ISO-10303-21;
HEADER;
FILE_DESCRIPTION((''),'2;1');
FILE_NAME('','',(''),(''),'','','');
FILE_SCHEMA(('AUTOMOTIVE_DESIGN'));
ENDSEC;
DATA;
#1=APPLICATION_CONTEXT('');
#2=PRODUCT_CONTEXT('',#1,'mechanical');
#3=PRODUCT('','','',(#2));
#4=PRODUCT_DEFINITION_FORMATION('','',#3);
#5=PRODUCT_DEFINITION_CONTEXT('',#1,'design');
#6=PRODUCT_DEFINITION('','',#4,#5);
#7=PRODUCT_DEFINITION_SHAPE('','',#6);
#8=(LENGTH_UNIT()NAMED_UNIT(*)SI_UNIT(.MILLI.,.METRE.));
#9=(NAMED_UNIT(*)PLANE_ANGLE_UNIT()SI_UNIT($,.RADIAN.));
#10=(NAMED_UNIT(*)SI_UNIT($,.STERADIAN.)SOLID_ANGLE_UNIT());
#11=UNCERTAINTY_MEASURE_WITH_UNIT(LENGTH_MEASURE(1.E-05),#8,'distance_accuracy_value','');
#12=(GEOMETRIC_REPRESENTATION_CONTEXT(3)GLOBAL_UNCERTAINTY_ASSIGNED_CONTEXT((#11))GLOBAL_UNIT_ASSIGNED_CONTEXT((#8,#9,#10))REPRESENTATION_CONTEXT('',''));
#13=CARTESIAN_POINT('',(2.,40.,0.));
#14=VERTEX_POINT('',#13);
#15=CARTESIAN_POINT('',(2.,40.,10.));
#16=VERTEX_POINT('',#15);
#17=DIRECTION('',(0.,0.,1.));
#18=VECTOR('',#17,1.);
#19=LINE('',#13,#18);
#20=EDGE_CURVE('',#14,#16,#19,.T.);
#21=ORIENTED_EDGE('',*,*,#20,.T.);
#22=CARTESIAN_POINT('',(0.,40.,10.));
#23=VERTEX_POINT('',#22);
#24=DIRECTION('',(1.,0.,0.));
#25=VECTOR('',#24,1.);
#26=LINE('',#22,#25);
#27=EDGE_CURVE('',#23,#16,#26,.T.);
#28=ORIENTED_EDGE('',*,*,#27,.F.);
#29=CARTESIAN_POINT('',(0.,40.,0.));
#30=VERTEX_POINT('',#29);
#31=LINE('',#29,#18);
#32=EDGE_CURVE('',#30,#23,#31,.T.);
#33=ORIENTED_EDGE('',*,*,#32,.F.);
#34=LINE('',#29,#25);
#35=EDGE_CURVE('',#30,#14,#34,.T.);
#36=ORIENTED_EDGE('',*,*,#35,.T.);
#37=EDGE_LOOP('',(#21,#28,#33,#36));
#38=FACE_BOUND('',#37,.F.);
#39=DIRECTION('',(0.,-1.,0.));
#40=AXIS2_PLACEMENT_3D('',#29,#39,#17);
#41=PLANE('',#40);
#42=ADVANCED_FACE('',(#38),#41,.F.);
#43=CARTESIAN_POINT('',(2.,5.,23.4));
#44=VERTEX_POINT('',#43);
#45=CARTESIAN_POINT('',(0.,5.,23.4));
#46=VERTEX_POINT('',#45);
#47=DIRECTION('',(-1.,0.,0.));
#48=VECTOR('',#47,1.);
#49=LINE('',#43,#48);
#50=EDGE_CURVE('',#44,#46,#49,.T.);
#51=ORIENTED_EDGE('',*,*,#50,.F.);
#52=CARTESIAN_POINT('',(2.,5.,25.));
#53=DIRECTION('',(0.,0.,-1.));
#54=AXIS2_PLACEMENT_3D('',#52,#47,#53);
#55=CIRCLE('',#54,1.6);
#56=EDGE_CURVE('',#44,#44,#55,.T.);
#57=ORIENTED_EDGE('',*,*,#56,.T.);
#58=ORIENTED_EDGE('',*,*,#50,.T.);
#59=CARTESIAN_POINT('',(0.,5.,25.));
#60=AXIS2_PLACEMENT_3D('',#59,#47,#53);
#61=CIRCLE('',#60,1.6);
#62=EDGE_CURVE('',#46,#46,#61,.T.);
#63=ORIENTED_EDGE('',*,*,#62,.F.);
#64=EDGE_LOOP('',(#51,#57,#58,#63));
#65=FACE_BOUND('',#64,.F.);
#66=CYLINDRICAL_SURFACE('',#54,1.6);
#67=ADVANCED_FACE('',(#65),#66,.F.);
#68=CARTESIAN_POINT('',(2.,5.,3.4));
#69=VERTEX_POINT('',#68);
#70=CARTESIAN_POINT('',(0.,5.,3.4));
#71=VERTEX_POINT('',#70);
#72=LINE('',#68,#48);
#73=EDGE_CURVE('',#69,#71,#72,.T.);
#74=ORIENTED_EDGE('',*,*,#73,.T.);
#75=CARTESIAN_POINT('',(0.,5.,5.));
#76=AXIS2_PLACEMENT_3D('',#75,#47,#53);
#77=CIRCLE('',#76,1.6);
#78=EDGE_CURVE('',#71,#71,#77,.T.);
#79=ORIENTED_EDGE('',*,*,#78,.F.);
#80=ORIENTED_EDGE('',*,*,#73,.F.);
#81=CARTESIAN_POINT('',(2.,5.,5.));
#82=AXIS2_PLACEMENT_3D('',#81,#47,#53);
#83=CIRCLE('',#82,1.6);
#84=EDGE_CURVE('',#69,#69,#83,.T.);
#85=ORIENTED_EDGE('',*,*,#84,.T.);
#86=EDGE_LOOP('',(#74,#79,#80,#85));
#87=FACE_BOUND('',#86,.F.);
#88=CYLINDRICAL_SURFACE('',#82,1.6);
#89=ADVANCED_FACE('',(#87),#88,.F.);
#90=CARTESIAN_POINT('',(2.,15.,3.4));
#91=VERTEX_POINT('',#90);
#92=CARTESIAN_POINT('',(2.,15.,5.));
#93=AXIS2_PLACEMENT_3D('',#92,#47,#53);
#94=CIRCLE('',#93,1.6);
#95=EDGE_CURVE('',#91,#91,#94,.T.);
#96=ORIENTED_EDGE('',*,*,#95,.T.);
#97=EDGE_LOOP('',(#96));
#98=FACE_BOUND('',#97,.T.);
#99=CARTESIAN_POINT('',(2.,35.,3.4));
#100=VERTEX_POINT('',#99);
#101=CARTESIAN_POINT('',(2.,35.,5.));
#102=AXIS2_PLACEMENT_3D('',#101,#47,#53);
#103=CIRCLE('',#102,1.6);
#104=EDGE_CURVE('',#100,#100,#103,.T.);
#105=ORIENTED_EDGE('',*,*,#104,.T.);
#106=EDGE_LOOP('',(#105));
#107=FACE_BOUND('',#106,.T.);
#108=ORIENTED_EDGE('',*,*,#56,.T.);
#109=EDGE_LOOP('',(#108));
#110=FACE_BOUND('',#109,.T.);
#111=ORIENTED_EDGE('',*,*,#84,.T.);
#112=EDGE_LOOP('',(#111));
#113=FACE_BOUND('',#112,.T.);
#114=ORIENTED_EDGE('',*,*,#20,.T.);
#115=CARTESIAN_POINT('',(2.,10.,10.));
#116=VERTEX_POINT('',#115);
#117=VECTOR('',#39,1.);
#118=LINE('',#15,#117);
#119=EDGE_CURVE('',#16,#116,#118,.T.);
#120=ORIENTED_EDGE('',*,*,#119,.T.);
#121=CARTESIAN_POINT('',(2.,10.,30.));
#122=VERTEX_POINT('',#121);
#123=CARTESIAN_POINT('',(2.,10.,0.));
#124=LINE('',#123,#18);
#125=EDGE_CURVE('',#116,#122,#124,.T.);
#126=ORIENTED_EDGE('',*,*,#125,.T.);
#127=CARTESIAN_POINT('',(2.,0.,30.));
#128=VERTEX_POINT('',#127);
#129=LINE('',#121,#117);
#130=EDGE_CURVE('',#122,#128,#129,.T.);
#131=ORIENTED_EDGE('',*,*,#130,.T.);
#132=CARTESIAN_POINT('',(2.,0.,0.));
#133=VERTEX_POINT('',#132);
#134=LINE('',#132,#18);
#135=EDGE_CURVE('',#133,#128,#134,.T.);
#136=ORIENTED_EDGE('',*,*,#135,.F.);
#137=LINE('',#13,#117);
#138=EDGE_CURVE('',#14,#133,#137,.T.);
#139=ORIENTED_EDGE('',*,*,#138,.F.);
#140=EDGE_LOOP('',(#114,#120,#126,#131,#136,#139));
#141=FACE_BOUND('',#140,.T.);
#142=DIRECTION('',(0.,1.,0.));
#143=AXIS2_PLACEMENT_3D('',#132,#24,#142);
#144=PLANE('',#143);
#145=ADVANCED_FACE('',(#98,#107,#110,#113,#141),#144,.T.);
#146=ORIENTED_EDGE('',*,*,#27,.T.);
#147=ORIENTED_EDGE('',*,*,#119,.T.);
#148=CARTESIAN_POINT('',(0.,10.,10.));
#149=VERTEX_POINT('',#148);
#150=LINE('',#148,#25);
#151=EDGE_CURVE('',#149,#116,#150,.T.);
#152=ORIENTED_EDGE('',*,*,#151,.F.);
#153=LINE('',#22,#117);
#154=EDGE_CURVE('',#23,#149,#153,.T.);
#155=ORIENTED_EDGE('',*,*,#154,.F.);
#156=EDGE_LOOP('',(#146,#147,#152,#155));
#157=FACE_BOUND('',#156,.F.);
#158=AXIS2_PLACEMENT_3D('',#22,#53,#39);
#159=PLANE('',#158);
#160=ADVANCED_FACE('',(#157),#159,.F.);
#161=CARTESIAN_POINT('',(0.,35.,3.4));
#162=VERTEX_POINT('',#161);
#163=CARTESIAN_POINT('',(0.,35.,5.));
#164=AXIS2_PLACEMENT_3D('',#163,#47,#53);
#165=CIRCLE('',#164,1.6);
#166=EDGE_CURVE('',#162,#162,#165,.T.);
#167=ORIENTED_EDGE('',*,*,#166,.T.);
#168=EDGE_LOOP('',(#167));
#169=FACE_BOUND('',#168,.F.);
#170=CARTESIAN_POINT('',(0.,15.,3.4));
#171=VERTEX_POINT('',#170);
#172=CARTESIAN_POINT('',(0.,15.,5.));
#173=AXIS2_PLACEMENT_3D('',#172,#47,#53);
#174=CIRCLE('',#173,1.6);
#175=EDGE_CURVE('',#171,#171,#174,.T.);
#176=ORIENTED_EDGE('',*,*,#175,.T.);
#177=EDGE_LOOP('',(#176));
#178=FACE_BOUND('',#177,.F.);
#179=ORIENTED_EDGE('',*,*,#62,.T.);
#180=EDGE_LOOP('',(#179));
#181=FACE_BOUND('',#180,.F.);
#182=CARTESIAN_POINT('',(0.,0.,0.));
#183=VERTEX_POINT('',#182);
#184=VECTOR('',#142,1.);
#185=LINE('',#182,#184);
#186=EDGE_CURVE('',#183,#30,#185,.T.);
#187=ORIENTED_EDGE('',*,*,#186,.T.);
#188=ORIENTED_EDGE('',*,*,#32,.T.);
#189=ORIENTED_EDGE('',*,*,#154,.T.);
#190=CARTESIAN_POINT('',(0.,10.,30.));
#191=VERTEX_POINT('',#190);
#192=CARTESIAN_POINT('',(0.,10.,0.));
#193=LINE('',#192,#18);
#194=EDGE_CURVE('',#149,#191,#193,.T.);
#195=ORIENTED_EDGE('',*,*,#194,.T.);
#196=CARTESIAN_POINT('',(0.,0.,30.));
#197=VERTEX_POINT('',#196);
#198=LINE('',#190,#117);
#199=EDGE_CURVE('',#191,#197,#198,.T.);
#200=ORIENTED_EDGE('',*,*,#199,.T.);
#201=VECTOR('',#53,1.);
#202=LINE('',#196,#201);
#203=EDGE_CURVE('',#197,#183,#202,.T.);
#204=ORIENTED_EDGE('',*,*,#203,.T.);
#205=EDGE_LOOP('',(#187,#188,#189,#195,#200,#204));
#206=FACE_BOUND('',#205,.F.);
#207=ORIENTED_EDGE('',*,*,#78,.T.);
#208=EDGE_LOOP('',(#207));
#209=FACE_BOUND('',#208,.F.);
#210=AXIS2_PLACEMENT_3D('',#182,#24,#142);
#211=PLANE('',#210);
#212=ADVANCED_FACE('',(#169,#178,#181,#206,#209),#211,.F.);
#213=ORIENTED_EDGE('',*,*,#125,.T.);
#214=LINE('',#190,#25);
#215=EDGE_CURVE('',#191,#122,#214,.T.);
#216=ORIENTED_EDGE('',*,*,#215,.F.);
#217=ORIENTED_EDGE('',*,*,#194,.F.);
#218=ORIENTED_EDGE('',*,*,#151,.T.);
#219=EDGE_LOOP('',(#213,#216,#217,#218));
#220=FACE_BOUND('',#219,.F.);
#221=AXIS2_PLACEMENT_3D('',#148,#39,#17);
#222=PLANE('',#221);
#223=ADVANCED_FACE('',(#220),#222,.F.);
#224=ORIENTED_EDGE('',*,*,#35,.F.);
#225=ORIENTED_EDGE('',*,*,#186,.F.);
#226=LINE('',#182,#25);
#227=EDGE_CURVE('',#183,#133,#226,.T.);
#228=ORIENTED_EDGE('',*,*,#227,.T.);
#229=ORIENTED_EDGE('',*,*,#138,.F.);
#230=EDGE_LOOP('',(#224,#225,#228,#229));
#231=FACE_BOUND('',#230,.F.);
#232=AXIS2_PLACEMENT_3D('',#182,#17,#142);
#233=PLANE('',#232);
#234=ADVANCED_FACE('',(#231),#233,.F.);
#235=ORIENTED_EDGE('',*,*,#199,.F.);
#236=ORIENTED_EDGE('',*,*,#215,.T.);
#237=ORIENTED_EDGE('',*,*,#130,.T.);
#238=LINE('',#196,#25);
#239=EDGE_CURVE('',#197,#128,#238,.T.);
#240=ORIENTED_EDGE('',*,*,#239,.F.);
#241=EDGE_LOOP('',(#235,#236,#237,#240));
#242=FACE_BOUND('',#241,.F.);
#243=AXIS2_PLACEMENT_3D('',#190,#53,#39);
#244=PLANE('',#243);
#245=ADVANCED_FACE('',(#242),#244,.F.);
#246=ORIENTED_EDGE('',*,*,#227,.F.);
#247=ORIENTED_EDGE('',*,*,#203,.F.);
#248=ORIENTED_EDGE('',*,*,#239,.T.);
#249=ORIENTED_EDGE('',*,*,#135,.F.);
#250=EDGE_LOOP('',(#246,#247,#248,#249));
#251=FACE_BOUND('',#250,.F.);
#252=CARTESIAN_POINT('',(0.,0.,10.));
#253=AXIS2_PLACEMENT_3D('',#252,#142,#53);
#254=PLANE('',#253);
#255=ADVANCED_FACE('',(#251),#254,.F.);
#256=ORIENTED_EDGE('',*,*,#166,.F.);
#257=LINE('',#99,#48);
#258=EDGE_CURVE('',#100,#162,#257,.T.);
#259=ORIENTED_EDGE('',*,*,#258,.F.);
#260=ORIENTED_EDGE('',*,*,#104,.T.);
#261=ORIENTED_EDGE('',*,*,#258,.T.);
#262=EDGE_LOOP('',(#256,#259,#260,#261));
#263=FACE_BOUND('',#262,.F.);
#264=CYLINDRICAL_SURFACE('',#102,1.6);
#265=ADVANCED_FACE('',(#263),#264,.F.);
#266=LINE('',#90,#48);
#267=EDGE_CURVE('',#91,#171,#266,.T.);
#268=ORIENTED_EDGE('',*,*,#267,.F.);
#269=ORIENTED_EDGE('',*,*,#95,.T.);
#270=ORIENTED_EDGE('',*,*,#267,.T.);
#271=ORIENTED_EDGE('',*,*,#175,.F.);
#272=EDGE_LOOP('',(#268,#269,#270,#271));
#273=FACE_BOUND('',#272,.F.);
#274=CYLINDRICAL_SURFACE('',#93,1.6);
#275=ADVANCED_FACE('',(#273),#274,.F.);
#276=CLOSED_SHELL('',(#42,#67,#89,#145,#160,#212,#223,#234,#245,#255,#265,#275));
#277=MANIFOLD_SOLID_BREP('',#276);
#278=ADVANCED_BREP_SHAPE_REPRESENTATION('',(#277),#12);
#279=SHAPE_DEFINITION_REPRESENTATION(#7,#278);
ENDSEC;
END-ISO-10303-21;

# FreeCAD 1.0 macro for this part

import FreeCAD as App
import Part
import Sketcher

V = App.Vector
Q = App.Units.Quantity


def add_polygon(sketch, points):
    """Adds a closed chain of lines whose ends are joined by coincident constraints."""
    first, n = sketch.GeometryCount, len(points)
    for a, b in zip(points, points[1:] + points[:1]):
        sketch.addGeometry(Part.LineSegment(App.Vector(*a, 0), App.Vector(*b, 0)), False)
    for i in range(n):
        sketch.addConstraint(Sketcher.Constraint("Coincident", first + i, 2, first + (i + 1) % n, 1))

doc = App.newDocument("Part")
body = doc.addObject("PartDesign::Body", "Body")

sketch1 = doc.addObject("Sketcher::SketchObject", "Sketch")
body.addObject(sketch1)
sketch1.AttachmentSupport = (doc.YZ_Plane, [""])
sketch1.MapMode = "FlatFace"
add_polygon(sketch1, [(0, 0), (40, 0), (40, 10), (10, 10), (10, 30), (0, 30)])
sketch1.addConstraint([
    Sketcher.Constraint("Horizontal", 0),
    Sketcher.Constraint("Vertical", 1),
    Sketcher.Constraint("Horizontal", 2),
    Sketcher.Constraint("Vertical", 3),
    Sketcher.Constraint("Horizontal", 4),
    Sketcher.Constraint("Vertical", 5),
    Sketcher.Constraint("Coincident", 5, 2, -1, 1),
    Sketcher.Constraint("Equal", 4, 1),
    Sketcher.Constraint("Equal", 2, 5),
    Sketcher.Constraint("DistanceX", 2, 2, 2, 1, Q("30 mm")),
    Sketcher.Constraint("DistanceX", 4, 2, 4, 1, Q("10 mm")),
])
pad1 = doc.addObject("PartDesign::Pad", "Pad")
body.addObject(pad1)
pad1.Profile = sketch1
pad1.Length = 2

sketch2 = doc.addObject("Sketcher::SketchObject", "Sketch001")
body.addObject(sketch2)
sketch2.AttachmentSupport = (doc.YZ_Plane, [""])
sketch2.MapMode = "FlatFace"
sketch2.AttachmentOffset = App.Placement(V(0, 0, 2), App.Rotation())
sketch2.addGeometry([
    Part.Circle(V(5, 25, 0), V(0, 0, 1), 1.6),
    Part.Circle(V(5, 5, 0), V(0, 0, 1), 1.6),
    Part.Circle(V(15, 5, 0), V(0, 0, 1), 1.6),
    Part.Circle(V(35, 5, 0), V(0, 0, 1), 1.6),
], False)
sketch2.addConstraint([
    Sketcher.Constraint("Equal", 0, 1),
    Sketcher.Constraint("Equal", 1, 2),
    Sketcher.Constraint("Equal", 2, 3),
    Sketcher.Constraint("Horizontal", 1, 3, 2, 3),
    Sketcher.Constraint("Horizontal", 2, 3, 3, 3),
    Sketcher.Constraint("Vertical", 0, 3, 1, 3),
    Sketcher.Constraint("Diameter", 0, Q("3.2 mm")),
    Sketcher.Constraint("DistanceX", -1, 1, 0, 3, Q("5 mm")),
    Sketcher.Constraint("DistanceY", -1, 1, 0, 3, Q("25 mm")),
    Sketcher.Constraint("DistanceY", -1, 1, 1, 3, Q("5 mm")),
    Sketcher.Constraint("DistanceX", -1, 1, 2, 3, Q("15 mm")),
    Sketcher.Constraint("DistanceX", -1, 1, 3, 3, Q("35 mm")),
])
doc.recompute()
hole = doc.addObject("PartDesign::Hole", "Hole")
body.addObject(hole)
hole.Profile = sketch2
hole.ThreadType = "None"
hole.Diameter = 3.2
hole.DepthType = "ThroughAll"

doc.recompute()
